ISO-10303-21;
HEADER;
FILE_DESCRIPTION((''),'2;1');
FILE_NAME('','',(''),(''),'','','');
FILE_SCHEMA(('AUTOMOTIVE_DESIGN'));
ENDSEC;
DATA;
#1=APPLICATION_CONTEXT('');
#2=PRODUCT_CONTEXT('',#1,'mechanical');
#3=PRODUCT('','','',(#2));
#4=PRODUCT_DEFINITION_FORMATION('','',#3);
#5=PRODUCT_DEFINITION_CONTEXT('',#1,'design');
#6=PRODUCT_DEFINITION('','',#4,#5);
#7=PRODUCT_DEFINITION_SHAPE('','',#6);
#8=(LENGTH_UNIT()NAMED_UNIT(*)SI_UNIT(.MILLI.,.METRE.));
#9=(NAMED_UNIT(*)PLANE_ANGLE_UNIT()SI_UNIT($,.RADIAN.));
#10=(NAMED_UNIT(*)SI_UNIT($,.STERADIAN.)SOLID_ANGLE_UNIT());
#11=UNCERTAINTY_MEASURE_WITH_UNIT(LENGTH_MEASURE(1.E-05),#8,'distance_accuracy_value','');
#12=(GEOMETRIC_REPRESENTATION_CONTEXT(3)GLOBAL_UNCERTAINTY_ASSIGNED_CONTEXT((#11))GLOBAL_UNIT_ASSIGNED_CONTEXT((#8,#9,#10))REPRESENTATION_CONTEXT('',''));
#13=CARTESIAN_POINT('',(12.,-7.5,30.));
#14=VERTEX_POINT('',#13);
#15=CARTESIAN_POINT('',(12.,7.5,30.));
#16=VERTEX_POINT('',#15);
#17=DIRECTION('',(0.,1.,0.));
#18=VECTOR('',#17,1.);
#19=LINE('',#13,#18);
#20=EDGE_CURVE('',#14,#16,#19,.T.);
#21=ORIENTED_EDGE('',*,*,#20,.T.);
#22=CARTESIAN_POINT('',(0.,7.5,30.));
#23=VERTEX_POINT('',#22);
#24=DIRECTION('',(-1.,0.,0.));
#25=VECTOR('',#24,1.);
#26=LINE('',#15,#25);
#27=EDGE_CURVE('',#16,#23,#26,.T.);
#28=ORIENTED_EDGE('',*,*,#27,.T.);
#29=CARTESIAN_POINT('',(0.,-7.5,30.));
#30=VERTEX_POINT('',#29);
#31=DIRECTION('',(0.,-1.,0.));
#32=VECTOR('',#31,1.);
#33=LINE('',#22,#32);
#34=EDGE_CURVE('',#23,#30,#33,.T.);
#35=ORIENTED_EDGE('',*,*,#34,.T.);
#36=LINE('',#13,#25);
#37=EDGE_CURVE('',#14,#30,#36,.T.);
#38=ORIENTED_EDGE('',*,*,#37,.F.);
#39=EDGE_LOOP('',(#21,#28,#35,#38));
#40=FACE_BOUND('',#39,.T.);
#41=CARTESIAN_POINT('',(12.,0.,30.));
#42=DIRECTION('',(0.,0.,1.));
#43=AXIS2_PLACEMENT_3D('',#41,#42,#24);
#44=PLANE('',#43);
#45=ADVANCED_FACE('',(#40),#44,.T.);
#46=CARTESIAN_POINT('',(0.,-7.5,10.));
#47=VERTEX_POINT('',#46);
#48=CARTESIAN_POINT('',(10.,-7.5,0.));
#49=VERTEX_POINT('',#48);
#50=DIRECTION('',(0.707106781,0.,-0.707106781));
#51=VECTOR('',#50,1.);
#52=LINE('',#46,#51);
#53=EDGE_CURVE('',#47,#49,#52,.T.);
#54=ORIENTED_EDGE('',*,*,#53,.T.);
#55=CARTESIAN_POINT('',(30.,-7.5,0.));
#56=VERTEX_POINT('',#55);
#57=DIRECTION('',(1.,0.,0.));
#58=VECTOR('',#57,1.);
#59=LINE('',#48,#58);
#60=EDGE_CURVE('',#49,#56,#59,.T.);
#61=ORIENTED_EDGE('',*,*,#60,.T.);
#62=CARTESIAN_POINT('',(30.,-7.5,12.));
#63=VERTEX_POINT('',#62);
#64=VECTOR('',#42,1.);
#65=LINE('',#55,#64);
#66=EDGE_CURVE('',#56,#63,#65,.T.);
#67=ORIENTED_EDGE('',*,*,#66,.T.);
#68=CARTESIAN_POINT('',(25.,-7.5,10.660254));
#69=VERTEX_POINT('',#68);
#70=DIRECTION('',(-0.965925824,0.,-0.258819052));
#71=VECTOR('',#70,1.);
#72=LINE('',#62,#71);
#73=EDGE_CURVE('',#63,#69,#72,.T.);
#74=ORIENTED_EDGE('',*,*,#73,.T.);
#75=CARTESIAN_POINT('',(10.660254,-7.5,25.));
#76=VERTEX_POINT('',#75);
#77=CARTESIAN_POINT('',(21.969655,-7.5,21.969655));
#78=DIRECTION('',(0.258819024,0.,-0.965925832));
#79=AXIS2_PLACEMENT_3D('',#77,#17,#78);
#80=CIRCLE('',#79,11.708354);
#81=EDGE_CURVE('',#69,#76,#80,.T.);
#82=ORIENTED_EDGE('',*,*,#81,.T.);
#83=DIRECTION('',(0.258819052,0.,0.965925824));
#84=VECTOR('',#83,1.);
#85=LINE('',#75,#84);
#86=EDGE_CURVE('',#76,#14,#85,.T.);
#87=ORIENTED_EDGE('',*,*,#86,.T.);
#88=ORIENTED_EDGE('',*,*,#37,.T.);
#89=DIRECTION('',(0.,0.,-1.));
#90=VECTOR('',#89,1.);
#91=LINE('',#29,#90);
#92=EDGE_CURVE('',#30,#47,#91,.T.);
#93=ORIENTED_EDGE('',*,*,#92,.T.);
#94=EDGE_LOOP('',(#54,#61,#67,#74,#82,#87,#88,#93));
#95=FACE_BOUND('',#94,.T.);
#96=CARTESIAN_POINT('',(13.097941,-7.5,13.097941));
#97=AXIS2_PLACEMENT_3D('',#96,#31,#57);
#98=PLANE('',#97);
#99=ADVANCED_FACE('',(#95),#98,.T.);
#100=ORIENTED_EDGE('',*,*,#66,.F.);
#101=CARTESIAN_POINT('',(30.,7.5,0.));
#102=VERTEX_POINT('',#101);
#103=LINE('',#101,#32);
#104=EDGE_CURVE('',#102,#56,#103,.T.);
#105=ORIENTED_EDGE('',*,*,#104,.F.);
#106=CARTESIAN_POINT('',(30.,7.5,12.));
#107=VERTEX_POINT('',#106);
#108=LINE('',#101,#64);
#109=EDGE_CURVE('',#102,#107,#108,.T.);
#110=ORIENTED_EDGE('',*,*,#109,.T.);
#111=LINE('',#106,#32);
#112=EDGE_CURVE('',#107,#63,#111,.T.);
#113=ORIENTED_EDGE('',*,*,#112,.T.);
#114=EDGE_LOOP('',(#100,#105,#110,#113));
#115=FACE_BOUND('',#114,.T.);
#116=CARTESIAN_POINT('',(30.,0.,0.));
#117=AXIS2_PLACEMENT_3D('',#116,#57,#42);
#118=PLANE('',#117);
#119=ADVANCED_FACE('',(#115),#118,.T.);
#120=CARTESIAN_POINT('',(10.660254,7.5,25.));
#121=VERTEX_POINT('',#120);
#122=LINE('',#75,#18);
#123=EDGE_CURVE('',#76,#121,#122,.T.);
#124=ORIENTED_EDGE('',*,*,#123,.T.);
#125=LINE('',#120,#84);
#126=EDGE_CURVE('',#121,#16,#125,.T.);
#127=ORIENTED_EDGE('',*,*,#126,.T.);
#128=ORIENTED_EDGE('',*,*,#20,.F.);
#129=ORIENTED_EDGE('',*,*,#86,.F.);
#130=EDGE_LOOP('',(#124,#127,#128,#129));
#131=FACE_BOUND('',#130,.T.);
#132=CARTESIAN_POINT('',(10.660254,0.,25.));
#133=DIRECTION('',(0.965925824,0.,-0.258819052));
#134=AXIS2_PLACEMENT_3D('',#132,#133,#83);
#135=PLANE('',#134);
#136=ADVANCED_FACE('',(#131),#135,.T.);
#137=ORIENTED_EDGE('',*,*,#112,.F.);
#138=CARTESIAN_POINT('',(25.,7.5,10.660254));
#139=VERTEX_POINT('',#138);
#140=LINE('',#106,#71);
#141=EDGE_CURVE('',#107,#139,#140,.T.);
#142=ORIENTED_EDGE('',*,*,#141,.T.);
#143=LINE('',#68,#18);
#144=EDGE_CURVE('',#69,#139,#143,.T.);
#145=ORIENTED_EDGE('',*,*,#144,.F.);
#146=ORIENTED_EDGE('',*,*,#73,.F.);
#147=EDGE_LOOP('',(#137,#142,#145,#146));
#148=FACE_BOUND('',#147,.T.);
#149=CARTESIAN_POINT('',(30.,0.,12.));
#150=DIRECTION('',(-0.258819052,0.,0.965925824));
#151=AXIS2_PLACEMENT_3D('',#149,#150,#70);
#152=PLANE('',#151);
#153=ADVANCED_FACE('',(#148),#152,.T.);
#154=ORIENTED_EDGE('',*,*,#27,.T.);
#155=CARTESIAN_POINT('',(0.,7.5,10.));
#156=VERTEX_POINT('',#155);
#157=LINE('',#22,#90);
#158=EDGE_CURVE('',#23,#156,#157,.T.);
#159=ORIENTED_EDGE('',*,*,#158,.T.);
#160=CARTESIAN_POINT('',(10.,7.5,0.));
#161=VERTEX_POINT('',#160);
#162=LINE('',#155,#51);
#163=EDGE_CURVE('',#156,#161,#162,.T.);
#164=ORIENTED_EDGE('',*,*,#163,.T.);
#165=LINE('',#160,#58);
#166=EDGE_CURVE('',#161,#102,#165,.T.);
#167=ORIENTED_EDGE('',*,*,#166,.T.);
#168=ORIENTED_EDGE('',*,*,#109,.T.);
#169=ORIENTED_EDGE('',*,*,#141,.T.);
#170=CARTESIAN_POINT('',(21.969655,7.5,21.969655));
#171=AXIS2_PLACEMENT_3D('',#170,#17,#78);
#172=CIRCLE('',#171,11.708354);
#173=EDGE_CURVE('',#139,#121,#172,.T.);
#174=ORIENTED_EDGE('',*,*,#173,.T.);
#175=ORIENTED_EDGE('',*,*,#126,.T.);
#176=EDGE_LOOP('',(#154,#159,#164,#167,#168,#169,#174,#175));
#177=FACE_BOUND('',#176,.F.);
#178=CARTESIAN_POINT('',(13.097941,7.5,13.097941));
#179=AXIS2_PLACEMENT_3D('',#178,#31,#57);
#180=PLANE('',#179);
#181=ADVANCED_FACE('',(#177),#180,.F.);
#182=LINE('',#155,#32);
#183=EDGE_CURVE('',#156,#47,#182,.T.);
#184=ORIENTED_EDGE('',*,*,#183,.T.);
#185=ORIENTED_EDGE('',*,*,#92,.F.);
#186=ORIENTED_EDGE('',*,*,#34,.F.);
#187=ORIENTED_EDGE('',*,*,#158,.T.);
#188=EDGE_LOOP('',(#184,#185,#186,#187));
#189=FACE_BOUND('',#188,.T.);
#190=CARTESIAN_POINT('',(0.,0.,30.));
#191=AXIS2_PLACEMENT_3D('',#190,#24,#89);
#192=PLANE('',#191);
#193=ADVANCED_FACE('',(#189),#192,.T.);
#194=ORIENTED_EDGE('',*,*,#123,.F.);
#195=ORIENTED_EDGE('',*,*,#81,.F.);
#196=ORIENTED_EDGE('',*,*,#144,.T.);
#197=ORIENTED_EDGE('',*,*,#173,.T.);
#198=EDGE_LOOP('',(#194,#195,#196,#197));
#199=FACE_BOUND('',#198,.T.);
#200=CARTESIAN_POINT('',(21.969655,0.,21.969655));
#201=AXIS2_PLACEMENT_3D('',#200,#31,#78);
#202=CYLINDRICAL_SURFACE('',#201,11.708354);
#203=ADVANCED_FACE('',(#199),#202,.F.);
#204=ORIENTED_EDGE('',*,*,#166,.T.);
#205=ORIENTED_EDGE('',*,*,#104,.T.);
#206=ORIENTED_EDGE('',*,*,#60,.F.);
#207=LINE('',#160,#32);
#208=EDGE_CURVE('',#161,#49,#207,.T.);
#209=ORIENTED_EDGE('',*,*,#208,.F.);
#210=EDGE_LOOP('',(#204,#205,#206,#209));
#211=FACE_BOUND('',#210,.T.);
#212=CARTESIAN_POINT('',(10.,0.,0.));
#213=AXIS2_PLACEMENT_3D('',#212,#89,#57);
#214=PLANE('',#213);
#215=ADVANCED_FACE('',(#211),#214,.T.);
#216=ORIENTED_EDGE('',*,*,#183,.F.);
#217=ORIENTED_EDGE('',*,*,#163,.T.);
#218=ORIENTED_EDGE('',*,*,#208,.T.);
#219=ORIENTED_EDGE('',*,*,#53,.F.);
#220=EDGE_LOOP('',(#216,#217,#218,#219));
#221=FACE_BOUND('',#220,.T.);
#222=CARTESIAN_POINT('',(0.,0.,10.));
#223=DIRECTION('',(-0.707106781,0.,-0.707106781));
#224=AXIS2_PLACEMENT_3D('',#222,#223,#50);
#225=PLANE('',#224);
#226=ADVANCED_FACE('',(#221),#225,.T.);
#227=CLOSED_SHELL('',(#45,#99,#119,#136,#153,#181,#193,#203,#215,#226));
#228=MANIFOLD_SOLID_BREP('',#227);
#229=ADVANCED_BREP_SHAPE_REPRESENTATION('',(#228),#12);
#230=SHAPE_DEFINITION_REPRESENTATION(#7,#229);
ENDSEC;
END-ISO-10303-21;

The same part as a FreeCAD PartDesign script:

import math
import FreeCAD as App
import Part
import Sketcher
Q = App.Units.Quantity

doc = App.newDocument("Part")
body = doc.addObject("PartDesign::Body", "Body")

# Sketch on XZ plane
sketch1 = body.newObject("Sketcher::SketchObject", "Sketch")
sketch1.AttachmentSupport = (doc.getObject("XZ_Plane"), [""])
sketch1.MapMode = "FlatFace"
sketch1.addGeometry(Part.LineSegment(App.Vector(12, 30, 0), App.Vector(0, 30, 0)), False)
sketch1.addGeometry(Part.LineSegment(App.Vector(0, 30, 0), App.Vector(0, 10, 0)), False)
sketch1.addGeometry(Part.LineSegment(App.Vector(0, 10, 0), App.Vector(10, 0, 0)), False)
sketch1.addGeometry(Part.LineSegment(App.Vector(10, 0, 0), App.Vector(30, 0, 0)), False)
sketch1.addGeometry(Part.LineSegment(App.Vector(30, 0, 0), App.Vector(30, 12, 0)), False)
sketch1.addGeometry(Part.LineSegment(App.Vector(30, 12, 0), App.Vector(25, 11, 0)), False)
sketch1.addGeometry(Part.ArcOfCircle(Part.Circle(App.Vector(22, 22, 0), App.Vector(0, 0, 1), 12), math.radians(165), math.radians(285)), False)
sketch1.addGeometry(Part.LineSegment(App.Vector(11, 25, 0), App.Vector(12, 30, 0)), False)
sketch1.addConstraint(Sketcher.Constraint("Coincident", 0, 2, 1, 1))
sketch1.addConstraint(Sketcher.Constraint("Coincident", 1, 2, 2, 1))
sketch1.addConstraint(Sketcher.Constraint("Coincident", 2, 2, 3, 1))
sketch1.addConstraint(Sketcher.Constraint("Coincident", 3, 2, 4, 1))
sketch1.addConstraint(Sketcher.Constraint("Coincident", 4, 2, 5, 1))
sketch1.addConstraint(Sketcher.Constraint("Tangent", 5, 2, 6, 2))
sketch1.addConstraint(Sketcher.Constraint("Tangent", 6, 1, 7, 1))
sketch1.addConstraint(Sketcher.Constraint("Coincident", 7, 2, 0, 1))
sketch1.addConstraint(Sketcher.Constraint("Horizontal", 0))
sketch1.addConstraint(Sketcher.Constraint("Vertical", 1))
sketch1.addConstraint(Sketcher.Constraint("Horizontal", 3))
sketch1.addConstraint(Sketcher.Constraint("Vertical", 4))
sketch1.addConstraint(Sketcher.Constraint("PointOnObject", 0, 2, -2))
sketch1.addConstraint(Sketcher.Constraint("PointOnObject", 2, 2, -1))
sketch1.addConstraint(Sketcher.Constraint("Equal", 3, 1))
sketch1.addConstraint(Sketcher.Constraint("Equal", 0, 4))
sketch1.addConstraint(Sketcher.Constraint("Equal", 5, 7))
sketch1.addConstraint(Sketcher.Constraint("DistanceX", 0, 2, 0, 1, Q("12 mm")))
sketch1.addConstraint(Sketcher.Constraint("DistanceX", 3, 1, 3, 2, Q("20 mm")))
sketch1.addConstraint(Sketcher.Constraint("Angle", 2, Q("-45 deg")))
sketch1.addConstraint(Sketcher.Constraint("Angle", 5, Q("-165 deg")))
sketch1.addConstraint(Sketcher.Constraint("DistanceY", -1, 1, 0, 2, Q("30 mm")))
sketch1.addConstraint(Sketcher.Constraint("DistanceX", -1, 1, 5, 2, Q("25 mm")))
pad1 = body.newObject("PartDesign::Pad", "Pad")
pad1.Profile = sketch1
pad1.Length = 15
pad1.Midplane = True

doc.recompute()
